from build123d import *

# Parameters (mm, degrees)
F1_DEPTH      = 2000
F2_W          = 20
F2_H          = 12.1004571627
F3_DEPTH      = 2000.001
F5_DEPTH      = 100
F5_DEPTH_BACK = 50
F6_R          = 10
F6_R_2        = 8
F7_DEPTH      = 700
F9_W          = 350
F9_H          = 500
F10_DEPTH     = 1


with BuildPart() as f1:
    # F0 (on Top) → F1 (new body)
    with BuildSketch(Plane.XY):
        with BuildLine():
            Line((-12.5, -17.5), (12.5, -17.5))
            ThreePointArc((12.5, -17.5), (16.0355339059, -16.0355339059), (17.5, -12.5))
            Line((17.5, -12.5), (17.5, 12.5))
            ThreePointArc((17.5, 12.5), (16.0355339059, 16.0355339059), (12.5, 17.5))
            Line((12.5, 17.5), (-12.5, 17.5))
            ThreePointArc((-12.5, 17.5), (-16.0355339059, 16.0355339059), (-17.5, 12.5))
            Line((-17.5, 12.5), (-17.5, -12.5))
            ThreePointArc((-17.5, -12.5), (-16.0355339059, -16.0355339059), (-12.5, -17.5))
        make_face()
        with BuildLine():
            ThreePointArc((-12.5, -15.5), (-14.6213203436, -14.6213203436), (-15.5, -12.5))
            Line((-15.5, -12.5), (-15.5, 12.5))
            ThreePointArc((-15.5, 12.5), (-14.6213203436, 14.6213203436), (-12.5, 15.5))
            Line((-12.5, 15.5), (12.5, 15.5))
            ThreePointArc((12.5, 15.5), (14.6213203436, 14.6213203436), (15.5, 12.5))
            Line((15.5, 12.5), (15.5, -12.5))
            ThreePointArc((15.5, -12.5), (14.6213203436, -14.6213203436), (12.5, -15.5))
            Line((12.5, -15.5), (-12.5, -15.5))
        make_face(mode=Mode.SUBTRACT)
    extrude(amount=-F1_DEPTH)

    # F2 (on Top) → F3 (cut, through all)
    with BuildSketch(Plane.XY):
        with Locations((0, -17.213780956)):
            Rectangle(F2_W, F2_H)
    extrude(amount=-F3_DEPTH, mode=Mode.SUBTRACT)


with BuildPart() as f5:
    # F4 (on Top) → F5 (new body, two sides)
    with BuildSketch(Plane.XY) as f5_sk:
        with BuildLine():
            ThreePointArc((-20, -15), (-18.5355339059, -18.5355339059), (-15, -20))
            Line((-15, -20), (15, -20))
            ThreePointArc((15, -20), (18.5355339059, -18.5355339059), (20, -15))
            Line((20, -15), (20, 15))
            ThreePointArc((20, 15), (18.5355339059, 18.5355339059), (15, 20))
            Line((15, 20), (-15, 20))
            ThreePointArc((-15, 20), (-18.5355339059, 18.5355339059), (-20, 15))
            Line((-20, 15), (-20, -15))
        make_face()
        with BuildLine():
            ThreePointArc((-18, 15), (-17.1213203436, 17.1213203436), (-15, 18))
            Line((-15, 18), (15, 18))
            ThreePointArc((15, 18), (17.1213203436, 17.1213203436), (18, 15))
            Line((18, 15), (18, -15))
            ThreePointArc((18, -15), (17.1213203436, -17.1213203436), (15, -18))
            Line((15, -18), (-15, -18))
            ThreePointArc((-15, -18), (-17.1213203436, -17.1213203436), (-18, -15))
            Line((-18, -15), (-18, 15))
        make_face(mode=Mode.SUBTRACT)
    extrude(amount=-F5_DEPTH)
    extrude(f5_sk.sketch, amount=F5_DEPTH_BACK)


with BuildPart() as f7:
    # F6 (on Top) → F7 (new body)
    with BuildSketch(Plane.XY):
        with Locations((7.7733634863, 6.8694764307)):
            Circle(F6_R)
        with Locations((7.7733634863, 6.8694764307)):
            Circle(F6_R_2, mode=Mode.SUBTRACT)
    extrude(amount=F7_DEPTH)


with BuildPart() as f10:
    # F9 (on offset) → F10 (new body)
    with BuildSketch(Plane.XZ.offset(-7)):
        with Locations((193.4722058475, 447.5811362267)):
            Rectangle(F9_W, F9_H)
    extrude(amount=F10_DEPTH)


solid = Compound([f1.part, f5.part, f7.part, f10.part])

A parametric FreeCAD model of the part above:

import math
import FreeCAD as App
import Part
import Sketcher
from FreeCAD import Vector


def add_polygon(sketch, points):
    """Adds a closed chain of lines whose ends are joined by coincident constraints."""
    first, n = sketch.GeometryCount, len(points)
    for a, b in zip(points, points[1:] + points[:1]):
        sketch.addGeometry(Part.LineSegment(App.Vector(*a, 0), App.Vector(*b, 0)), False)
    for i in range(n):
        sketch.addConstraint(Sketcher.Constraint("Coincident", first + i, 2, first + (i + 1) % n, 1))

doc = App.newDocument("Part")
body = doc.addObject("PartDesign::Body", "Body")

# Sketch on XY plane
sketch1 = doc.addObject("Sketcher::SketchObject", "Sketch")
body.addObject(sketch1)
sketch1.AttachmentSupport = (doc.XY_Plane, [""])
sketch1.MapMode = "FlatFace"
sketch1.addGeometry(Part.LineSegment(Vector(-12.5, -17.5, 0), Vector(12.5, -17.5, 0)), False)
sketch1.addGeometry(Part.ArcOfCircle(Part.Circle(Vector(12.5, -12.5, 0), Vector(0, 0, 1), 5), math.radians(-90), math.radians(0)), False)
sketch1.addGeometry(Part.LineSegment(Vector(17.5, -12.5, 0), Vector(17.5, 12.5, 0)), False)
sketch1.addGeometry(Part.ArcOfCircle(Part.Circle(Vector(12.5, 12.5, 0), Vector(0, 0, 1), 5), math.radians(0), math.radians(90)), False)
sketch1.addGeometry(Part.LineSegment(Vector(12.5, 17.5, 0), Vector(-12.5, 17.5, 0)), False)
sketch1.addGeometry(Part.ArcOfCircle(Part.Circle(Vector(-12.5, 12.5, 0), Vector(0, 0, 1), 5), math.radians(90), math.radians(180)), False)
sketch1.addGeometry(Part.LineSegment(Vector(-17.5, 12.5, 0), Vector(-17.5, -12.5, 0)), False)
sketch1.addGeometry(Part.ArcOfCircle(Part.Circle(Vector(-12.5, -12.5, 0), Vector(0, 0, 1), 5), math.radians(180), math.radians(270)), False)
sketch1.addGeometry(Part.LineSegment(Vector(12.5, -15.5, 0), Vector(-12.5, -15.5, 0)), False)
sketch1.addGeometry(Part.ArcOfCircle(Part.Circle(Vector(-12.5, -12.5, 0), Vector(0, 0, 1), 3), math.radians(180), math.radians(270)), False)
sketch1.addGeometry(Part.LineSegment(Vector(-15.5, -12.5, 0), Vector(-15.5, 12.5, 0)), False)
sketch1.addGeometry(Part.ArcOfCircle(Part.Circle(Vector(-12.5, 12.5, 0), Vector(0, 0, 1), 3), math.radians(90), math.radians(180)), False)
sketch1.addGeometry(Part.LineSegment(Vector(-12.5, 15.5, 0), Vector(12.5, 15.5, 0)), False)
sketch1.addGeometry(Part.ArcOfCircle(Part.Circle(Vector(12.5, 12.5, 0), Vector(0, 0, 1), 3), math.radians(0), math.radians(90)), False)
sketch1.addGeometry(Part.LineSegment(Vector(15.5, 12.5, 0), Vector(15.5, -12.5, 0)), False)
sketch1.addGeometry(Part.ArcOfCircle(Part.Circle(Vector(12.5, -12.5, 0), Vector(0, 0, 1), 3), math.radians(-90), math.radians(0)), False)
sketch1.addConstraint(Sketcher.Constraint("Tangent", 0, 2, 1, 1))
sketch1.addConstraint(Sketcher.Constraint("Tangent", 1, 2, 2, 1))
sketch1.addConstraint(Sketcher.Constraint("Tangent", 2, 2, 3, 1))
sketch1.addConstraint(Sketcher.Constraint("Tangent", 3, 2, 4, 1))
sketch1.addConstraint(Sketcher.Constraint("Tangent", 4, 2, 5, 1))
sketch1.addConstraint(Sketcher.Constraint("Tangent", 5, 2, 6, 1))
sketch1.addConstraint(Sketcher.Constraint("Tangent", 6, 2, 7, 1))
sketch1.addConstraint(Sketcher.Constraint("Tangent", 7, 2, 0, 1))
sketch1.addConstraint(Sketcher.Constraint("Tangent", 8, 2, 9, 2))
sketch1.addConstraint(Sketcher.Constraint("Tangent", 9, 1, 10, 1))
sketch1.addConstraint(Sketcher.Constraint("Tangent", 10, 2, 11, 2))
sketch1.addConstraint(Sketcher.Constraint("Tangent", 11, 1, 12, 1))
sketch1.addConstraint(Sketcher.Constraint("Tangent", 12, 2, 13, 2))
sketch1.addConstraint(Sketcher.Constraint("Tangent", 13, 1, 14, 1))
sketch1.addConstraint(Sketcher.Constraint("Tangent", 14, 2, 15, 2))
sketch1.addConstraint(Sketcher.Constraint("Tangent", 15, 1, 8, 1))
sketch1.addConstraint(Sketcher.Constraint("Horizontal", 0))
sketch1.addConstraint(Sketcher.Constraint("Vertical", 2))
sketch1.addConstraint(Sketcher.Constraint("Horizontal", 4))
sketch1.addConstraint(Sketcher.Constraint("Vertical", 6))
sketch1.addConstraint(Sketcher.Constraint("Horizontal", 8))
sketch1.addConstraint(Sketcher.Constraint("Vertical", 10))
sketch1.addConstraint(Sketcher.Constraint("Horizontal", 12))
sketch1.addConstraint(Sketcher.Constraint("Vertical", 14))
sketch1.addConstraint(Sketcher.Constraint("Coincident", 9, 3, 7, 3))
sketch1.addConstraint(Sketcher.Constraint("Coincident", 11, 3, 5, 3))
sketch1.addConstraint(Sketcher.Constraint("Coincident", 13, 3, 3, 3))
sketch1.addConstraint(Sketcher.Constraint("Equal", 1, 3))
sketch1.addConstraint(Sketcher.Constraint("Equal", 3, 5))
sketch1.addConstraint(Sketcher.Constraint("Equal", 5, 7))
sketch1.addConstraint(Sketcher.Constraint("Equal", 13, 15))
sketch1.addConstraint(Sketcher.Constraint("Symmetric", 1, 3, 5, 3, -1, 1))
sketch1.addConstraint(Sketcher.Constraint("Equal", 12, 2))
sketch1.addConstraint(Sketcher.Constraint("Radius", 1, 5.0))
sketch1.addConstraint(Sketcher.Constraint("Radius", 9, 3.0))
sketch1.addConstraint(Sketcher.Constraint("DistanceX", 0, 1, 0, 2, 25.0))
pad1 = doc.addObject("PartDesign::Pad", "Pad")
body.addObject(pad1)
pad1.Profile = sketch1
pad1.Length = 2000
pad1.Reversed = True

# Sketch on XY plane
sketch2 = doc.addObject("Sketcher::SketchObject", "Sketch001")
body.addObject(sketch2)
sketch2.AttachmentSupport = (doc.XY_Plane, [""])
sketch2.MapMode = "FlatFace"
add_polygon(sketch2, [(-10, -11), (-10, -23), (10, -23), (10, -11)])  # lines 0-3
sketch2.addConstraint(Sketcher.Constraint("Vertical", 0))
sketch2.addConstraint(Sketcher.Constraint("Horizontal", 1))
sketch2.addConstraint(Sketcher.Constraint("Vertical", 2))
sketch2.addConstraint(Sketcher.Constraint("Horizontal", 3))
sketch2.addConstraint(Sketcher.Constraint("DistanceX", 1, 1, 1, 2, 20.0))
sketch2.addConstraint(Sketcher.Constraint("DistanceX", 0, 2, -1, 1, 10.0))
sketch2.addConstraint(Sketcher.Constraint("DistanceY", 0, 2, 0, 1, 12.100457))
sketch2.addConstraint(Sketcher.Constraint("DistanceY", 0, 2, -1, 1, 23.26401))
pocket1 = doc.addObject("PartDesign::Pocket", "Pocket")
body.addObject(pocket1)
pocket1.Profile = sketch2
pocket1.Type = "ThroughAll"
body2 = doc.addObject("PartDesign::Body", "Body001")

# Sketch on XY plane
sketch3 = doc.addObject("Sketcher::SketchObject", "Sketch002")
body2.addObject(sketch3)
sketch3.AttachmentSupport = (doc.getObject("XY_Plane001"), [""])
sketch3.MapMode = "FlatFace"
sketch3.addGeometry(Part.ArcOfCircle(Part.Circle(Vector(-15, -15, 0), Vector(0, 0, 1), 5), math.radians(180), math.radians(270)), False)
sketch3.addGeometry(Part.LineSegment(Vector(-15, -20, 0), Vector(15, -20, 0)), False)
sketch3.addGeometry(Part.ArcOfCircle(Part.Circle(Vector(15, -15, 0), Vector(0, 0, 1), 5), math.radians(-90), math.radians(0)), False)
sketch3.addGeometry(Part.LineSegment(Vector(20, -15, 0), Vector(20, 15, 0)), False)
sketch3.addGeometry(Part.ArcOfCircle(Part.Circle(Vector(15, 15, 0), Vector(0, 0, 1), 5), math.radians(0), math.radians(90)), False)
sketch3.addGeometry(Part.LineSegment(Vector(15, 20, 0), Vector(-15, 20, 0)), False)
sketch3.addGeometry(Part.ArcOfCircle(Part.Circle(Vector(-15, 15, 0), Vector(0, 0, 1), 5), math.radians(90), math.radians(180)), False)
sketch3.addGeometry(Part.LineSegment(Vector(-20, 15, 0), Vector(-20, -15, 0)), False)
sketch3.addGeometry(Part.LineSegment(Vector(-18, -15, 0), Vector(-18, 15, 0)), False)
sketch3.addGeometry(Part.ArcOfCircle(Part.Circle(Vector(-15, 15, 0), Vector(0, 0, 1), 3), math.radians(90), math.radians(180)), False)
sketch3.addGeometry(Part.LineSegment(Vector(-15, 18, 0), Vector(15, 18, 0)), False)
sketch3.addGeometry(Part.ArcOfCircle(Part.Circle(Vector(15, 15, 0), Vector(0, 0, 1), 3), math.radians(0), math.radians(90)), False)
sketch3.addGeometry(Part.LineSegment(Vector(18, 15, 0), Vector(18, -15, 0)), False)
sketch3.addGeometry(Part.ArcOfCircle(Part.Circle(Vector(15, -15, 0), Vector(0, 0, 1), 3), math.radians(-90), math.radians(0)), False)
sketch3.addGeometry(Part.LineSegment(Vector(15, -18, 0), Vector(-15, -18, 0)), False)
sketch3.addGeometry(Part.ArcOfCircle(Part.Circle(Vector(-15, -15, 0), Vector(0, 0, 1), 3), math.radians(180), math.radians(270)), False)
sketch3.addConstraint(Sketcher.Constraint("Tangent", 0, 2, 1, 1))
sketch3.addConstraint(Sketcher.Constraint("Tangent", 1, 2, 2, 1))
sketch3.addConstraint(Sketcher.Constraint("Tangent", 2, 2, 3, 1))
sketch3.addConstraint(Sketcher.Constraint("Tangent", 3, 2, 4, 1))
sketch3.addConstraint(Sketcher.Constraint("Tangent", 4, 2, 5, 1))
sketch3.addConstraint(Sketcher.Constraint("Tangent", 5, 2, 6, 1))
sketch3.addConstraint(Sketcher.Constraint("Tangent", 6, 2, 7, 1))
sketch3.addConstraint(Sketcher.Constraint("Tangent", 7, 2, 0, 1))
sketch3.addConstraint(Sketcher.Constraint("Tangent", 8, 2, 9, 2))
sketch3.addConstraint(Sketcher.Constraint("Tangent", 9, 1, 10, 1))
sketch3.addConstraint(Sketcher.Constraint("Tangent", 10, 2, 11, 2))
sketch3.addConstraint(Sketcher.Constraint("Tangent", 11, 1, 12, 1))
sketch3.addConstraint(Sketcher.Constraint("Tangent", 12, 2, 13, 2))
sketch3.addConstraint(Sketcher.Constraint("Tangent", 13, 1, 14, 1))
sketch3.addConstraint(Sketcher.Constraint("Tangent", 14, 2, 15, 2))
sketch3.addConstraint(Sketcher.Constraint("Tangent", 15, 1, 8, 1))
sketch3.addConstraint(Sketcher.Constraint("Horizontal", 1))
sketch3.addConstraint(Sketcher.Constraint("Vertical", 3))
sketch3.addConstraint(Sketcher.Constraint("Horizontal", 5))
sketch3.addConstraint(Sketcher.Constraint("Vertical", 7))
sketch3.addConstraint(Sketcher.Constraint("Vertical", 8))
sketch3.addConstraint(Sketcher.Constraint("Horizontal", 10))
sketch3.addConstraint(Sketcher.Constraint("Vertical", 12))
sketch3.addConstraint(Sketcher.Constraint("Horizontal", 14))
sketch3.addConstraint(Sketcher.Constraint("Coincident", 9, 3, 6, 3))
sketch3.addConstraint(Sketcher.Constraint("Coincident", 11, 3, 4, 3))
sketch3.addConstraint(Sketcher.Constraint("Coincident", 13, 3, 2, 3))
sketch3.addConstraint(Sketcher.Constraint("Equal", 0, 2))
sketch3.addConstraint(Sketcher.Constraint("Equal", 2, 4))
sketch3.addConstraint(Sketcher.Constraint("Equal", 4, 6))
sketch3.addConstraint(Sketcher.Constraint("Equal", 13, 15))
sketch3.addConstraint(Sketcher.Constraint("Symmetric", 0, 3, 4, 3, -1, 1))
sketch3.addConstraint(Sketcher.Constraint("Equal", 14, 3))
sketch3.addConstraint(Sketcher.Constraint("Radius", 0, 5.0))
sketch3.addConstraint(Sketcher.Constraint("Radius", 9, 3.0))
sketch3.addConstraint(Sketcher.Constraint("DistanceX", 1, 1, 1, 2, 30.0))
pad2 = doc.addObject("PartDesign::Pad", "Pad001")
body2.addObject(pad2)
pad2.Profile = sketch3
pad2.Type = "TwoLengths"
pad2.Length = 100
pad2.Length2 = 50
pad2.Reversed = True
body3 = doc.addObject("PartDesign::Body", "Body002")

# Sketch on XY plane
sketch4 = doc.addObject("Sketcher::SketchObject", "Sketch003")
body3.addObject(sketch4)
sketch4.AttachmentSupport = (doc.getObject("XY_Plane002"), [""])
sketch4.MapMode = "FlatFace"
sketch4.addGeometry(Part.Circle(Vector(8, 7, 0), Vector(0, 0, 1), 10), False)
sketch4.addGeometry(Part.Circle(Vector(8, 7, 0), Vector(0, 0, 1), 8), False)
sketch4.addConstraint(Sketcher.Constraint("Coincident", 1, 3, 0, 3))
sketch4.addConstraint(Sketcher.Constraint("Diameter", 0, 20.0))
sketch4.addConstraint(Sketcher.Constraint("Diameter", 1, 16.0))
sketch4.addConstraint(Sketcher.Constraint("DistanceX", -1, 1, 0, 3, 7.773363))
sketch4.addConstraint(Sketcher.Constraint("DistanceY", -1, 1, 0, 3, 6.869476))
pad3 = doc.addObject("PartDesign::Pad", "Pad002")
body3.addObject(pad3)
pad3.Profile = sketch4
pad3.Length = 700
body4 = doc.addObject("PartDesign::Body", "Body003")

# Sketch on XZ plane
sketch5 = doc.addObject("Sketcher::SketchObject", "Sketch004")
body4.addObject(sketch5)
sketch5.AttachmentSupport = (doc.getObject("XZ_Plane003"), [""])
sketch5.MapMode = "FlatFace"
sketch5.AttachmentOffset = App.Placement(Vector(0, 0, -7), App.Rotation())
add_polygon(sketch5, [(18, 698), (18, 198), (368, 198), (368, 698)])  # lines 0-3
sketch5.addConstraint(Sketcher.Constraint("Vertical", 0))
sketch5.addConstraint(Sketcher.Constraint("Horizontal", 1))
sketch5.addConstraint(Sketcher.Constraint("Vertical", 2))
sketch5.addConstraint(Sketcher.Constraint("Horizontal", 3))
sketch5.addConstraint(Sketcher.Constraint("DistanceX", 1, 1, 1, 2, 350.0))
sketch5.addConstraint(Sketcher.Constraint("DistanceY", 0, 2, 0, 1, 500.0))
sketch5.addConstraint(Sketcher.Constraint("DistanceX", -1, 1, 0, 2, 18.472206))
sketch5.addConstraint(Sketcher.Constraint("DistanceY", -1, 1, 0, 2, 197.581136))
pad4 = doc.addObject("PartDesign::Pad", "Pad003")
body4.addObject(pad4)
pad4.Profile = sketch5
pad4.Length = 1

doc.recompute()
